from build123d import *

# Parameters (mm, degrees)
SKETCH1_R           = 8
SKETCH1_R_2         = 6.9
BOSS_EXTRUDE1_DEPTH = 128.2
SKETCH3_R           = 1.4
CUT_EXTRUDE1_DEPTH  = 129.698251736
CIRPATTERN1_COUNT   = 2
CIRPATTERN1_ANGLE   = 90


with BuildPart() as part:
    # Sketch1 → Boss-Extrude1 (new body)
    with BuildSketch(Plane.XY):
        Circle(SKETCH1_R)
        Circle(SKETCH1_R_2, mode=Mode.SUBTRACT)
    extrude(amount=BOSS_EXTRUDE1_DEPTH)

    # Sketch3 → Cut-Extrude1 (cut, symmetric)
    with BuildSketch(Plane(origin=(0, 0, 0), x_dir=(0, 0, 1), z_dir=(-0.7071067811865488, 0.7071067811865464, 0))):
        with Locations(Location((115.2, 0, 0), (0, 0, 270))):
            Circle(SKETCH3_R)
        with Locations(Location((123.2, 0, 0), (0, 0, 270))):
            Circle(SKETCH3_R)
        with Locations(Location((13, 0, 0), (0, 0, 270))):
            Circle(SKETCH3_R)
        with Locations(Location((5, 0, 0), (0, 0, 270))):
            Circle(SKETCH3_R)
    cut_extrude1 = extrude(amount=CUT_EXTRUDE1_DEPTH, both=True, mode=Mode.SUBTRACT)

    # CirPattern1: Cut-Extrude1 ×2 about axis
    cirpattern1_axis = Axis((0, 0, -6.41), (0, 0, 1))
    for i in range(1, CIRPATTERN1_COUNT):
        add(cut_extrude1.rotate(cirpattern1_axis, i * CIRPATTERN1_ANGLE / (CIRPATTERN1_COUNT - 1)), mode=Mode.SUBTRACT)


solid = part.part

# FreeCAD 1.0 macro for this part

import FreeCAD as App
import Part
import Sketcher

V = App.Vector
Q = App.Units.Quantity

doc = App.newDocument("Part")
params = doc.addObject("Spreadsheet::Sheet", "Params")
for row, (alias, value) in enumerate([
    ("sketch1_diameter", "16 mm"),
    ("sketch1_diameter2", "13.8 mm"),
    ("pad1_length", "128.2 mm"),
    ("sketch2_diameter", "2.8 mm"),
    ("pocket1_length", "259.396503 mm"),
], start=1):
    params.set(f"A{row}", alias)
    params.set(f"B{row}", "=" + value)
    params.setAlias(f"B{row}", alias)

body = doc.addObject("PartDesign::Body", "Body")

# Sketch on XY plane
sketch1 = doc.addObject("Sketcher::SketchObject", "Sketch")
body.addObject(sketch1)
sketch1.AttachmentSupport = (doc.XY_Plane, [""])
sketch1.MapMode = "FlatFace"
sketch1.addGeometry(Part.Circle(V(0, 0, 0), V(0, 0, 1), 8), False)
sketch1.addGeometry(Part.Circle(V(0, 0, 0), V(0, 0, 1), 6.9), False)
sketch1.addConstraint(Sketcher.Constraint("Coincident", 0, 3, -1, 1))
sketch1.addConstraint(Sketcher.Constraint("Coincident", 1, 3, -1, 1))
sketch1.addConstraint(Sketcher.Constraint("Diameter", 0, Q("16 mm")))
sketch1.addConstraint(Sketcher.Constraint("Diameter", 1, Q("13.8 mm")))
sketch1.setExpression("Constraints[2]", "Params.sketch1_diameter")
sketch1.setExpression("Constraints[3]", "Params.sketch1_diameter2")
pad1 = doc.addObject("PartDesign::Pad", "Pad")
body.addObject(pad1)
pad1.Profile = sketch1
pad1.setExpression("Length", "Params.pad1_length")

# Sketch on an angled plane
sketch2 = doc.addObject("Sketcher::SketchObject", "Sketch001")
body.addObject(sketch2)
sketch2.Placement = App.Placement(V(0, 0, 0), App.Rotation(V(0, 0, 1), V(0.707106781, 0.707106781, 0), V(-0.707106781, 0.707106781, 0), "ZXY"))
sketch2.addGeometry(Part.Circle(V(115.2, 0, 0), V(0, 0, 1), 1.4), False)
sketch2.addGeometry(Part.Circle(V(123.2, 0, 0), V(0, 0, 1), 1.4), False)
sketch2.addGeometry(Part.Circle(V(13, 0, 0), V(0, 0, 1), 1.4), False)
sketch2.addGeometry(Part.Circle(V(5, 0, 0), V(0, 0, 1), 1.4), False)
sketch2.addConstraint(Sketcher.Constraint("Equal", 0, 1))
sketch2.addConstraint(Sketcher.Constraint("Equal", 1, 2))
sketch2.addConstraint(Sketcher.Constraint("Equal", 2, 3))
sketch2.addConstraint(Sketcher.Constraint("PointOnObject", 0, 3, -1))
sketch2.addConstraint(Sketcher.Constraint("PointOnObject", 1, 3, -1))
sketch2.addConstraint(Sketcher.Constraint("PointOnObject", 2, 3, -1))
sketch2.addConstraint(Sketcher.Constraint("PointOnObject", 3, 3, -1))
sketch2.addConstraint(Sketcher.Constraint("Diameter", 0, Q("2.8 mm")))
sketch2.addConstraint(Sketcher.Constraint("DistanceX", -1, 1, 2, 3, Q("13 mm")))
sketch2.addConstraint(Sketcher.Constraint("DistanceX", -1, 1, 3, 3, Q("5 mm")))
sketch2.addConstraint(Sketcher.Constraint("DistanceX", 0, 3, 1, 3, Q("8 mm")))
sketch2.addConstraint(Sketcher.Constraint("DistanceX", -1, 1, 0, 3, Q("115.2 mm")))
sketch2.setExpression("Constraints[7]", "Params.sketch2_diameter")
pocket1 = doc.addObject("PartDesign::Pocket", "Pocket")
body.addObject(pocket1)
pocket1.Profile = sketch2
pocket1.setExpression("Length", "Params.pocket1_length")
pocket1.Midplane = True
doc.recompute()

polarpattern = doc.addObject("PartDesign::PolarPattern", "PolarPattern")
body.addObject(polarpattern)
polarpattern.Originals = [pocket1]
polarpattern.Axis = (doc.Z_Axis, [""])
polarpattern.Angle = 90
polarpattern.Occurrences = 2
body.Tip = polarpattern

doc.recompute()
